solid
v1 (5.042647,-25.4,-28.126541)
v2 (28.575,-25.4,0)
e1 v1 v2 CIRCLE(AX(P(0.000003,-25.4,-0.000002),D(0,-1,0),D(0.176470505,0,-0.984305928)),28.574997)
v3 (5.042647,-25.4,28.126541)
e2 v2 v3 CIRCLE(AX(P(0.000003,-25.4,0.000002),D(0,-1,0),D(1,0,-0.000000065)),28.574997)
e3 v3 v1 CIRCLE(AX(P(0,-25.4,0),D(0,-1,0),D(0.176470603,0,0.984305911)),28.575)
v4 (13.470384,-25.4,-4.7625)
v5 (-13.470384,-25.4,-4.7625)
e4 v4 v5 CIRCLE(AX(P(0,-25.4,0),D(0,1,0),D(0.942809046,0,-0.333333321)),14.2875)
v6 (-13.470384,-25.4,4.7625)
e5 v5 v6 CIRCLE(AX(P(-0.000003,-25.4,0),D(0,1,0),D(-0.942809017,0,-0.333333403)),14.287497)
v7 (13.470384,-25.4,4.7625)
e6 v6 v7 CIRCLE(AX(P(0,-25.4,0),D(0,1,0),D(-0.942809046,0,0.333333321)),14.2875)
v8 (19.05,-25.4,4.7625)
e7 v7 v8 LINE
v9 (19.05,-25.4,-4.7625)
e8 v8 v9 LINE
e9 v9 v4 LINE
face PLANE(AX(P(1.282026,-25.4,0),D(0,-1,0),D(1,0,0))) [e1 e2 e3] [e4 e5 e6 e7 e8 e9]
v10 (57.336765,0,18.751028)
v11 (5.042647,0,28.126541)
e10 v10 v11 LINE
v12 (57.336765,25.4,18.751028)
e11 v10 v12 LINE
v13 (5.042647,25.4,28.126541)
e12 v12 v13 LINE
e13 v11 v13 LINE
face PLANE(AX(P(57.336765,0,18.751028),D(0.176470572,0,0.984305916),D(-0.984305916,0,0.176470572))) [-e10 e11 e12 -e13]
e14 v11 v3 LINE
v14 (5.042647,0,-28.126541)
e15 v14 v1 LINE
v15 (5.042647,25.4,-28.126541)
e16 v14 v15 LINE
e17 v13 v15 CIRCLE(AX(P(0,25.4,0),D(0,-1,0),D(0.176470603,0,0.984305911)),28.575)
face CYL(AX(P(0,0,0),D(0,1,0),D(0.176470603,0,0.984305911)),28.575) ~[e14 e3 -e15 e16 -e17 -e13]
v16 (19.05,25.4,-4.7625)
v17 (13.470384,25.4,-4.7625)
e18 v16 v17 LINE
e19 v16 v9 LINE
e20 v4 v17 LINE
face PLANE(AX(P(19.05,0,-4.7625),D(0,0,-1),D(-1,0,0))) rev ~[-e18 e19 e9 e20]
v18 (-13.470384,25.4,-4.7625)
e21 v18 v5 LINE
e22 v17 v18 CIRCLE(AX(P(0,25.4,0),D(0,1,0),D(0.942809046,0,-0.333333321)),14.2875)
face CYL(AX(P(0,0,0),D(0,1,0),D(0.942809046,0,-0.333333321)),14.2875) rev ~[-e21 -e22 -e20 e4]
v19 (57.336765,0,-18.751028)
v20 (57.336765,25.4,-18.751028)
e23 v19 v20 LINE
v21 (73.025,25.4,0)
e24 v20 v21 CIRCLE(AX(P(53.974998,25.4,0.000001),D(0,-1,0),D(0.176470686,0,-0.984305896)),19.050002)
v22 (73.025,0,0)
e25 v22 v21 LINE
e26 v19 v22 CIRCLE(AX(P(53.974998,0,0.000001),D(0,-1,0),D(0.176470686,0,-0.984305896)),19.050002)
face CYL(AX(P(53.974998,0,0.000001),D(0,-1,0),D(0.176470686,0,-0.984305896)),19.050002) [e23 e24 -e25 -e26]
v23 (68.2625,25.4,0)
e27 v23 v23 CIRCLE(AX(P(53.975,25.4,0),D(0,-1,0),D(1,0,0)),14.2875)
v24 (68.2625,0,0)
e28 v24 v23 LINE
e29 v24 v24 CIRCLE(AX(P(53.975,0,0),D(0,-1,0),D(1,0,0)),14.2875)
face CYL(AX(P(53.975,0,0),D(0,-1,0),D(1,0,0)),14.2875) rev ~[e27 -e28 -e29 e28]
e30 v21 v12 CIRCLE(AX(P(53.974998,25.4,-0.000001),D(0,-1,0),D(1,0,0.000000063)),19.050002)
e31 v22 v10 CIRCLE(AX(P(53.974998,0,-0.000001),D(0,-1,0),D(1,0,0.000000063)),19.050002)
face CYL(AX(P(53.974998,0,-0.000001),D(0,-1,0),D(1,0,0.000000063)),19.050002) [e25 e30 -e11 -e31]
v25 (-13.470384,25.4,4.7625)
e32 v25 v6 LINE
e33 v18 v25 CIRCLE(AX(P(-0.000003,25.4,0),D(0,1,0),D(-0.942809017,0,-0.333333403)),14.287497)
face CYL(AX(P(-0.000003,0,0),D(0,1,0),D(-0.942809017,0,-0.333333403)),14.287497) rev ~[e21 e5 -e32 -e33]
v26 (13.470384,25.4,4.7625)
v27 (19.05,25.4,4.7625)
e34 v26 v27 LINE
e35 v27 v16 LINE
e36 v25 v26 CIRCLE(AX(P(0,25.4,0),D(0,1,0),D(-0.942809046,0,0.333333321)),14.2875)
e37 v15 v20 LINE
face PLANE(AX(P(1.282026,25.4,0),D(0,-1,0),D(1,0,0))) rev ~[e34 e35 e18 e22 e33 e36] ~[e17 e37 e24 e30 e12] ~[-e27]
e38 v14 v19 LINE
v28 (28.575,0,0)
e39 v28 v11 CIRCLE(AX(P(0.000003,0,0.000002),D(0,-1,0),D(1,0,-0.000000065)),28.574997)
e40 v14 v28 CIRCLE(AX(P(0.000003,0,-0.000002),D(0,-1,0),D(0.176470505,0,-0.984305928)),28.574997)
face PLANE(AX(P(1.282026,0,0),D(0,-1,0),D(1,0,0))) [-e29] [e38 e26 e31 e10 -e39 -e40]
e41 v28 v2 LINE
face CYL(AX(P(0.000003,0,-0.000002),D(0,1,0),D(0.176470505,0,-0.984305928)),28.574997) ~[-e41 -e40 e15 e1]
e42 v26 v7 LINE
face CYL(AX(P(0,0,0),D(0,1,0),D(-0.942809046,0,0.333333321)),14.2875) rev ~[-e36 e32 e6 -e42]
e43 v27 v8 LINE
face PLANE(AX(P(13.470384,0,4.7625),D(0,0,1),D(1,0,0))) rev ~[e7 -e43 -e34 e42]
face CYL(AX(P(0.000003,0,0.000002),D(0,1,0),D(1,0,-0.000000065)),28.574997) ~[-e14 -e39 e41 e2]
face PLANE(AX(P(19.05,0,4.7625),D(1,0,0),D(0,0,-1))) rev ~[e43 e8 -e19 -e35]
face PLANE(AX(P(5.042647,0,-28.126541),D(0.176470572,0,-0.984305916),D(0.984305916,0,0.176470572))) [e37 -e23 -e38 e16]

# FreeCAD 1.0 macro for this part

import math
import FreeCAD as App
import Part
import Sketcher
Q = App.Units.Quantity

doc = App.newDocument("Part")
body = doc.addObject("PartDesign::Body", "Body")

# Sketch on XZ plane
sketch1 = body.newObject("Sketcher::SketchObject", "Sketch")
sketch1.AttachmentSupport = (doc.getObject("XZ_Plane"), [""])
sketch1.MapMode = "FlatFace"
sketch1.addGeometry(Part.ArcOfCircle(Part.Circle(App.Vector(0, 0, 0), App.Vector(0, 0, 1), 29), math.radians(80), math.radians(280)), False)
sketch1.addGeometry(Part.LineSegment(App.Vector(5, -28, 0), App.Vector(57, -19, 0)), False)
sketch1.addGeometry(Part.ArcOfCircle(Part.Circle(App.Vector(54, 0, 0), App.Vector(0, 0, 1), 19), math.radians(-80), math.radians(0)), False)
sketch1.addGeometry(Part.ArcOfCircle(Part.Circle(App.Vector(54, 0, 0), App.Vector(0, 0, 1), 19), math.radians(0), math.radians(80)), False)
sketch1.addGeometry(Part.LineSegment(App.Vector(57, 19, 0), App.Vector(5, 28, 0)), False)
sketch1.addGeometry(Part.ArcOfCircle(Part.Circle(App.Vector(0, 0, 0), App.Vector(0, 0, 1), 14), math.radians(-161), math.radians(-19)), False)
sketch1.addGeometry(Part.ArcOfCircle(Part.Circle(App.Vector(0, 0, 0), App.Vector(0, 0, 1), 14), math.radians(161), math.radians(199)), False)
sketch1.addGeometry(Part.ArcOfCircle(Part.Circle(App.Vector(0, 0, 0), App.Vector(0, 0, 1), 14), math.radians(19), math.radians(161)), False)
sketch1.addGeometry(Part.LineSegment(App.Vector(13, 5, 0), App.Vector(19, 5, 0)), False)
sketch1.addGeometry(Part.LineSegment(App.Vector(19, 5, 0), App.Vector(19, -5, 0)), False)
sketch1.addGeometry(Part.LineSegment(App.Vector(19, -5, 0), App.Vector(13, -5, 0)), False)
sketch1.addGeometry(Part.Circle(App.Vector(54, 0, 0), App.Vector(0, 0, 1), 14), False)
sketch1.addConstraint(Sketcher.Constraint("Tangent", 0, 2, 1, 1))
sketch1.addConstraint(Sketcher.Constraint("Tangent", 1, 2, 2, 1))
sketch1.addConstraint(Sketcher.Constraint("Tangent", 2, 2, 3, 1))
sketch1.addConstraint(Sketcher.Constraint("Tangent", 3, 2, 4, 1))
sketch1.addConstraint(Sketcher.Constraint("Tangent", 4, 2, 0, 1))
sketch1.addConstraint(Sketcher.Constraint("Tangent", 5, 1, 6, 2))
sketch1.addConstraint(Sketcher.Constraint("Tangent", 6, 1, 7, 2))
sketch1.addConstraint(Sketcher.Constraint("Coincident", 7, 1, 8, 1))
sketch1.addConstraint(Sketcher.Constraint("Coincident", 8, 2, 9, 1))
sketch1.addConstraint(Sketcher.Constraint("Coincident", 9, 2, 10, 1))
sketch1.addConstraint(Sketcher.Constraint("Coincident", 10, 2, 5, 2))
sketch1.addConstraint(Sketcher.Constraint("Horizontal", 8))
sketch1.addConstraint(Sketcher.Constraint("Vertical", 9))
sketch1.addConstraint(Sketcher.Constraint("Horizontal", 10))
sketch1.addConstraint(Sketcher.Constraint("Coincident", 0, 3, -1, 1))
sketch1.addConstraint(Sketcher.Constraint("Coincident", 5, 3, -1, 1))
sketch1.addConstraint(Sketcher.Constraint("Coincident", 7, 3, -1, 1))
sketch1.addConstraint(Sketcher.Constraint("Coincident", 11, 3, 2, 3))
sketch1.addConstraint(Sketcher.Constraint("Equal", 2, 3))
sketch1.addConstraint(Sketcher.Constraint("Equal", 7, 11))
sketch1.addConstraint(Sketcher.Constraint("PointOnObject", 2, 3, -1))
sketch1.addConstraint(Sketcher.Constraint("PointOnObject", 2, 2, -1))
sketch1.addConstraint(Sketcher.Constraint("Horizontal", 6, 1, 7, 1))
sketch1.addConstraint(Sketcher.Constraint("Horizontal", 5, 1, 9, 2))
sketch1.addConstraint(Sketcher.Constraint("Vertical", 5, 1, 6, 1))
sketch1.addConstraint(Sketcher.Constraint("Radius", 2, Q("0.7500001 in")))
sketch1.addConstraint(Sketcher.Constraint("Diameter", 11, Q("1.125 in")))
sketch1.addConstraint(Sketcher.Constraint("Radius", 0, Q("1.125 in")))
sketch1.addConstraint(Sketcher.Constraint("DistanceY", 9, 2, 9, 1, Q("0.375 in")))
sketch1.addConstraint(Sketcher.Constraint("DistanceX", -1, 1, 8, 2, Q("0.75 in")))
sketch1.addConstraint(Sketcher.Constraint("DistanceX", -1, 1, 2, 3, Q("2.1249999 in")))
pad1 = body.newObject("PartDesign::Pad", "Pad")
pad1.Profile = sketch1
pad1.Length = Q("1 in")
pad1.Reversed = True

# Sketch on XZ plane
sketch2 = body.newObject("Sketcher::SketchObject", "Sketch001")
sketch2.AttachmentSupport = (doc.getObject("XZ_Plane"), [""])
sketch2.MapMode = "FlatFace"
sketch2.addGeometry(Part.ArcOfCircle(Part.Circle(App.Vector(0, 0, 0), App.Vector(0, 0, 1), 29), math.radians(-80), math.radians(0)), False)
sketch2.addGeometry(Part.ArcOfCircle(Part.Circle(App.Vector(0, 0, 0), App.Vector(0, 0, 1), 29), math.radians(0), math.radians(80)), False)
sketch2.addGeometry(Part.ArcOfCircle(Part.Circle(App.Vector(0, 0, 0), App.Vector(0, 0, 1), 29), math.radians(80), math.radians(280)), False)
sketch2.addGeometry(Part.ArcOfCircle(Part.Circle(App.Vector(0, 0, 0), App.Vector(0, 0, 1), 14), math.radians(-161), math.radians(-19)), False)
sketch2.addGeometry(Part.ArcOfCircle(Part.Circle(App.Vector(0, 0, 0), App.Vector(0, 0, 1), 14), math.radians(161), math.radians(199)), False)
sketch2.addGeometry(Part.ArcOfCircle(Part.Circle(App.Vector(0, 0, 0), App.Vector(0, 0, 1), 14), math.radians(19), math.radians(161)), False)
sketch2.addGeometry(Part.LineSegment(App.Vector(13, 5, 0), App.Vector(19, 5, 0)), False)
sketch2.addGeometry(Part.LineSegment(App.Vector(19, 5, 0), App.Vector(19, -5, 0)), False)
sketch2.addGeometry(Part.LineSegment(App.Vector(19, -5, 0), App.Vector(13, -5, 0)), False)
sketch2.addConstraint(Sketcher.Constraint("Tangent", 0, 2, 1, 1))
sketch2.addConstraint(Sketcher.Constraint("Tangent", 1, 2, 2, 1))
sketch2.addConstraint(Sketcher.Constraint("Tangent", 2, 2, 0, 1))
sketch2.addConstraint(Sketcher.Constraint("Tangent", 3, 1, 4, 2))
sketch2.addConstraint(Sketcher.Constraint("Tangent", 4, 1, 5, 2))
sketch2.addConstraint(Sketcher.Constraint("Coincident", 5, 1, 6, 1))
sketch2.addConstraint(Sketcher.Constraint("Coincident", 6, 2, 7, 1))
sketch2.addConstraint(Sketcher.Constraint("Coincident", 7, 2, 8, 1))
sketch2.addConstraint(Sketcher.Constraint("Coincident", 8, 2, 3, 2))
sketch2.addConstraint(Sketcher.Constraint("Horizontal", 6))
sketch2.addConstraint(Sketcher.Constraint("Vertical", 7))
sketch2.addConstraint(Sketcher.Constraint("Horizontal", 8))
sketch2.addConstraint(Sketcher.Constraint("Coincident", 0, 3, -1, 1))
sketch2.addConstraint(Sketcher.Constraint("Coincident", 3, 3, -1, 1))
sketch2.addConstraint(Sketcher.Constraint("Coincident", 5, 3, -1, 1))
sketch2.addConstraint(Sketcher.Constraint("PointOnObject", 0, 2, -1))
sketch2.addConstraint(Sketcher.Constraint("Horizontal", 4, 1, 5, 1))
sketch2.addConstraint(Sketcher.Constraint("Horizontal", 3, 1, 7, 2))
sketch2.addConstraint(Sketcher.Constraint("Vertical", 1, 2, 2, 2))
sketch2.addConstraint(Sketcher.Constraint("Vertical", 3, 1, 4, 1))
sketch2.addConstraint(Sketcher.Constraint("Radius", 0, Q("1.1249999 in")))
sketch2.addConstraint(Sketcher.Constraint("Radius", 3, Q("0.5625 in")))
sketch2.addConstraint(Sketcher.Constraint("DistanceY", 7, 2, 7, 1, Q("0.375 in")))
sketch2.addConstraint(Sketcher.Constraint("DistanceX", -1, 1, 6, 2, Q("0.75 in")))
sketch2.addConstraint(Sketcher.Constraint("DistanceY", -1, 1, 1, 2, 28.126541))
pad2 = body.newObject("PartDesign::Pad", "Pad001")
pad2.Profile = sketch2
pad2.Length = Q("1 in")

doc.recompute()
